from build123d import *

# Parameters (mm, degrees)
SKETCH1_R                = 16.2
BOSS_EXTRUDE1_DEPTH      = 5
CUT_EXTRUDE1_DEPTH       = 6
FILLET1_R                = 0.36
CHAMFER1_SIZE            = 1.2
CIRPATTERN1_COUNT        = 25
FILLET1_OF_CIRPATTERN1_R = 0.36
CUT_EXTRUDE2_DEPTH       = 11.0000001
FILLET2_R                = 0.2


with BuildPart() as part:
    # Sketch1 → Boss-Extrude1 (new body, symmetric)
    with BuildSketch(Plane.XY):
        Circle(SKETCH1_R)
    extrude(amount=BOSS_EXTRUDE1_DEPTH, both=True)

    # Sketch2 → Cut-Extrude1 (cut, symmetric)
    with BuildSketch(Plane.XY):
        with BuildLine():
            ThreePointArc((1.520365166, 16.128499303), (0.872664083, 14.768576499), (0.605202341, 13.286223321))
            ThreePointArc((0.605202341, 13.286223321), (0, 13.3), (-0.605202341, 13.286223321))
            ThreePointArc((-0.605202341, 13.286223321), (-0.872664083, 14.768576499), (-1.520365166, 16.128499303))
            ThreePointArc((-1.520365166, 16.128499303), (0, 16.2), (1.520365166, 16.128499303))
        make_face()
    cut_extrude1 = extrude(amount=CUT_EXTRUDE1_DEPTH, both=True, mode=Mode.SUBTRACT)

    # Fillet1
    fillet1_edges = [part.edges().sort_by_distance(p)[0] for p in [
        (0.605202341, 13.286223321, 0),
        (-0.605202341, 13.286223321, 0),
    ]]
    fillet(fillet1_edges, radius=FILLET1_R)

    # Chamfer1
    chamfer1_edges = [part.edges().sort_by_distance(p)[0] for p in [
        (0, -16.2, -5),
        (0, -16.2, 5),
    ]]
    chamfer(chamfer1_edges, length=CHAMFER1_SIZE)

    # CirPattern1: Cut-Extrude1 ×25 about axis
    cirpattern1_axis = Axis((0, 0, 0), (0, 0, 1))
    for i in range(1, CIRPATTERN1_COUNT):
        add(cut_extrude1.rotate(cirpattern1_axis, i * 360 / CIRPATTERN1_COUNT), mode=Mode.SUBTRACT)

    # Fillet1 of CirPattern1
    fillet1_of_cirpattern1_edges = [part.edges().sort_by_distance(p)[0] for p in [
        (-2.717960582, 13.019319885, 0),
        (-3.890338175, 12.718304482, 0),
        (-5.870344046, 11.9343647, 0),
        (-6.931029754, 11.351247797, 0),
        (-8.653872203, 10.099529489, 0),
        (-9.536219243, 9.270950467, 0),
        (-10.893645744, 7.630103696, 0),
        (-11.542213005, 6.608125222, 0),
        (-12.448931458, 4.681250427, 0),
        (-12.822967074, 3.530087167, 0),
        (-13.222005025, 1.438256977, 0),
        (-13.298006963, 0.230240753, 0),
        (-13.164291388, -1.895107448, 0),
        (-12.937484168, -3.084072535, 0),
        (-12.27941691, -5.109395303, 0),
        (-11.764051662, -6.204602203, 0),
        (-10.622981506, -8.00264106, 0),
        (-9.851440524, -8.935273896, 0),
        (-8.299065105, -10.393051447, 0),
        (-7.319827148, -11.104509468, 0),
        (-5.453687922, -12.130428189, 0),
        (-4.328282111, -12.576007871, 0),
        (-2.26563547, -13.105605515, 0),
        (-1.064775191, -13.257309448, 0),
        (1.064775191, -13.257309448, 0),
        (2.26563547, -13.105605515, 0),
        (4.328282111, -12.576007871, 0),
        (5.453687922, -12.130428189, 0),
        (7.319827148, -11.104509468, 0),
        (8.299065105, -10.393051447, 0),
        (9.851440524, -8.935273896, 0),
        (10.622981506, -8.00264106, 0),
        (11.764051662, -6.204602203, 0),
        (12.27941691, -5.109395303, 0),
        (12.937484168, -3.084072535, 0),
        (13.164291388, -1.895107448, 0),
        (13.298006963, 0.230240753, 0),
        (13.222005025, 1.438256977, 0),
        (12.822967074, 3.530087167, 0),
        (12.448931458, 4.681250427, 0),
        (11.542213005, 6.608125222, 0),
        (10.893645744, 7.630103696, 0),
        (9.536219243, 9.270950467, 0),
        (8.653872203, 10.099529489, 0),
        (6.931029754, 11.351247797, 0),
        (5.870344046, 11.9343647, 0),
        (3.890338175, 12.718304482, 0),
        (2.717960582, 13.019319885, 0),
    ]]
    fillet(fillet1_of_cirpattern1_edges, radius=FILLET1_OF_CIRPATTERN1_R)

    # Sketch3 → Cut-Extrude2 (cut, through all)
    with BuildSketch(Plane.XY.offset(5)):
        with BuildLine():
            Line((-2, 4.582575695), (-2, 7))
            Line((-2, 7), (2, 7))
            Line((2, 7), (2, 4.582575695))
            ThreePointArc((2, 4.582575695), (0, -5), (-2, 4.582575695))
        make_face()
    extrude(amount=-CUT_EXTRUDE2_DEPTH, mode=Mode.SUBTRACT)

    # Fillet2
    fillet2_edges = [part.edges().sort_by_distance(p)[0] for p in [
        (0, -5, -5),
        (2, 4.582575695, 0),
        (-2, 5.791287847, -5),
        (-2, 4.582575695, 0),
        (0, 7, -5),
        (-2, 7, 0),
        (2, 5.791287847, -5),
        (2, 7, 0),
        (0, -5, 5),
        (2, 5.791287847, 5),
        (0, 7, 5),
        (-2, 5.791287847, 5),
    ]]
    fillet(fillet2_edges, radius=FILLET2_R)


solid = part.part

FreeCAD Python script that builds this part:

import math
import FreeCAD as App
import Part
import Sketcher
from FreeCAD import Vector
Q = App.Units.Quantity


def edges_at(feature, points):
    """Names of the edges that pass closest to the given points."""
    edges = feature.Shape.Edges
    near = lambda p: min(range(len(edges)), key=lambda i: edges[i].distToShape(Part.Vertex(*p))[0])
    return sorted({f"Edge{near(p) + 1}" for p in points})

doc = App.newDocument("Part")
body = doc.addObject("PartDesign::Body", "Body")

sketch1 = doc.addObject("Sketcher::SketchObject", "Sketch")
body.addObject(sketch1)
sketch1.AttachmentSupport = (doc.XY_Plane, [""])
sketch1.MapMode = "FlatFace"
sketch1.addGeometry(Part.Circle(Vector(0, 0, 0), Vector(0, 0, 1), 16), False)
sketch1.addConstraint([
    Sketcher.Constraint("Coincident", 0, 3, -1, 1),
    Sketcher.Constraint("Diameter", 0, Q("32.4 mm")),
])
pad1 = doc.addObject("PartDesign::Pad", "Pad")
body.addObject(pad1)
pad1.Profile = sketch1
pad1.Length = 10
pad1.Midplane = True

sketch2 = doc.addObject("Sketcher::SketchObject", "Sketch001")
body.addObject(sketch2)
sketch2.AttachmentSupport = (doc.XY_Plane, [""])
sketch2.MapMode = "FlatFace"
sketch2.addGeometry([
    Part.ArcOfCircle(Part.Circle(Vector(6.3, 13, 0), Vector(0, 0, 1), 5.7), math.radians(147), math.radians(177)),
    Part.ArcOfCircle(Part.Circle(Vector(0, 0, 0), Vector(0, 0, 1), 16.2), math.radians(84.61), math.radians(95.39)),
    Part.ArcOfCircle(Part.Circle(Vector(-6.3, 13, 0), Vector(0, 0, 1), 5.7), math.radians(3), math.radians(33)),
    Part.ArcOfCircle(Part.Circle(Vector(0, 0, 0), Vector(0, 0, 1), 13.3), math.radians(87.39), math.radians(92.61)),
], False)
sketch2.addConstraint([
    Sketcher.Constraint("Coincident", 0, 1, 1, 1),
    Sketcher.Constraint("Coincident", 1, 2, 2, 2),
    Sketcher.Constraint("Coincident", 2, 1, 3, 2),
    Sketcher.Constraint("Coincident", 3, 1, 0, 2),
    Sketcher.Constraint("Coincident", 1, 3, -1, 1),
    Sketcher.Constraint("Coincident", 3, 3, -1, 1),
    Sketcher.Constraint("Equal", 0, 2),
    Sketcher.Constraint("Symmetric", 0, 3, 2, 3, -2),
    Sketcher.Constraint("Radius", 1, Q("16.2 mm")),
    Sketcher.Constraint("Radius", 3, Q("13.3 mm")),
    Sketcher.Constraint("Radius", 0, Q("5.679884 mm")),
    Sketcher.Constraint("DistanceX", 2, 3, 2, 1, Q("5.674 mm")),
    Sketcher.Constraint("DistanceY", -1, 1, 0, 1, Q("16.128499 mm")),
])
pocket1 = doc.addObject("PartDesign::Pocket", "Pocket")
body.addObject(pocket1)
pocket1.Profile = sketch2
pocket1.Length = 12
pocket1.Midplane = True
doc.recompute()

fillet = doc.addObject("PartDesign::Fillet", "Fillet")
body.addObject(fillet)
fillet.Base = (pocket1, edges_at(pocket1, [(0.605, 13.286, 0), (-0.605, 13.286, 0)]))
fillet.Radius = 0.36
doc.recompute()

chamfer = doc.addObject("PartDesign::Chamfer", "Chamfer")
body.addObject(chamfer)
chamfer.Base = (fillet, edges_at(fillet, [(0, -16.2, -5), (0, -16.2, 5)]))
chamfer.Size = 1.2
doc.recompute()

polarpattern = doc.addObject("PartDesign::PolarPattern", "PolarPattern")
body.addObject(polarpattern)
polarpattern.Originals = [pocket1]
polarpattern.Axis = (doc.Z_Axis, [""])
polarpattern.Angle = 360
polarpattern.Occurrences = 25
body.Tip = polarpattern
doc.recompute()

fillet2 = doc.addObject("PartDesign::Fillet", "Fillet001")
body.addObject(fillet2)
fillet2.Base = (polarpattern, edges_at(polarpattern, [
    (-2.718, 13.019, 0),
    (-3.89, 12.718, 0),
    (-5.87, 11.934, 0),
    (-6.931, 11.351, 0),
    (-8.654, 10.1, 0),
    (-9.536, 9.271, 0),
    (-10.894, 7.63, 0),
    (-11.542, 6.608, 0),
    (-12.449, 4.681, 0),
    (-12.823, 3.53, 0),
    (-13.222, 1.438, 0),
    (-13.298, 0.23, 0),
    (-13.164, -1.895, 0),
    (-12.937, -3.084, 0),
    (-12.279, -5.109, 0),
    (-11.764, -6.205, 0),
    (-10.623, -8.003, 0),
    (-9.851, -8.935, 0),
    (-8.299, -10.393, 0),
    (-7.32, -11.105, 0),
    (-5.454, -12.13, 0),
    (-4.328, -12.576, 0),
    (-2.266, -13.106, 0),
    (-1.065, -13.257, 0),
    (1.065, -13.257, 0),
    (2.266, -13.106, 0),
    (4.328, -12.576, 0),
    (5.454, -12.13, 0),
    (7.32, -11.105, 0),
    (8.299, -10.393, 0),
    (9.851, -8.935, 0),
    (10.623, -8.003, 0),
    (11.764, -6.205, 0),
    (12.279, -5.109, 0),
    (12.937, -3.084, 0),
    (13.164, -1.895, 0),
    (13.298, 0.23, 0),
    (13.222, 1.438, 0),
    (12.823, 3.53, 0),
    (12.449, 4.681, 0),
    (11.542, 6.608, 0),
    (10.894, 7.63, 0),
    (9.536, 9.271, 0),
    (8.654, 10.1, 0),
    (6.931, 11.351, 0),
    (5.87, 11.934, 0),
    (3.89, 12.718, 0),
    (2.718, 13.019, 0),
]))
fillet2.Radius = 0.36

sketch3 = doc.addObject("Sketcher::SketchObject", "Sketch002")
body.addObject(sketch3)
sketch3.AttachmentSupport = (doc.XY_Plane, [""])
sketch3.MapMode = "FlatFace"
sketch3.AttachmentOffset = App.Placement(Vector(0, 0, 5), App.Rotation())
sketch3.addGeometry([
    Part.LineSegment(Vector(-2, 7, 0), Vector(-2, 4.6, 0)),
    Part.ArcOfCircle(Part.Circle(Vector(0, 0, 0), Vector(0, 0, 1), 5), math.radians(114), math.radians(426)),
    Part.LineSegment(Vector(2, 4.6, 0), Vector(2, 7, 0)),
    Part.LineSegment(Vector(2, 7, 0), Vector(-2, 7, 0)),
], False)
sketch3.addConstraint([
    Sketcher.Constraint("Coincident", 0, 2, 1, 1),
    Sketcher.Constraint("Coincident", 1, 2, 2, 1),
    Sketcher.Constraint("Coincident", 2, 2, 3, 1),
    Sketcher.Constraint("Coincident", 3, 2, 0, 1),
    Sketcher.Constraint("Vertical", 0),
    Sketcher.Constraint("Vertical", 2),
    Sketcher.Constraint("Horizontal", 3),
    Sketcher.Constraint("Coincident", 1, 3, -1, 1),
    Sketcher.Constraint("Horizontal", 0, 2, 1, 2),
    Sketcher.Constraint("Radius", 1, Q("5 mm")),
    Sketcher.Constraint("DistanceX", 3, 2, 3, 1, Q("4 mm")),
    Sketcher.Constraint("DistanceY", -1, 1, 2, 2, Q("7 mm")),
])
pocket2 = doc.addObject("PartDesign::Pocket", "Pocket001")
body.addObject(pocket2)
pocket2.Profile = sketch3
pocket2.Type = "ThroughAll"
doc.recompute()

fillet3 = doc.addObject("PartDesign::Fillet", "Fillet002")
body.addObject(fillet3)
fillet3.Base = (pocket2, edges_at(pocket2, [
    (0, -5, -5),
    (2, 4.583, 0),
    (-2, 5.791, -5),
    (-2, 4.583, 0),
    (0, 7, -5),
    (-2, 7, 0),
    (2, 5.791, -5),
    (2, 7, 0),
    (0, -5, 5),
    (2, 5.791, 5),
    (0, 7, 5),
    (-2, 5.791, 5),
]))
fillet3.Radius = 0.2

doc.recompute()
